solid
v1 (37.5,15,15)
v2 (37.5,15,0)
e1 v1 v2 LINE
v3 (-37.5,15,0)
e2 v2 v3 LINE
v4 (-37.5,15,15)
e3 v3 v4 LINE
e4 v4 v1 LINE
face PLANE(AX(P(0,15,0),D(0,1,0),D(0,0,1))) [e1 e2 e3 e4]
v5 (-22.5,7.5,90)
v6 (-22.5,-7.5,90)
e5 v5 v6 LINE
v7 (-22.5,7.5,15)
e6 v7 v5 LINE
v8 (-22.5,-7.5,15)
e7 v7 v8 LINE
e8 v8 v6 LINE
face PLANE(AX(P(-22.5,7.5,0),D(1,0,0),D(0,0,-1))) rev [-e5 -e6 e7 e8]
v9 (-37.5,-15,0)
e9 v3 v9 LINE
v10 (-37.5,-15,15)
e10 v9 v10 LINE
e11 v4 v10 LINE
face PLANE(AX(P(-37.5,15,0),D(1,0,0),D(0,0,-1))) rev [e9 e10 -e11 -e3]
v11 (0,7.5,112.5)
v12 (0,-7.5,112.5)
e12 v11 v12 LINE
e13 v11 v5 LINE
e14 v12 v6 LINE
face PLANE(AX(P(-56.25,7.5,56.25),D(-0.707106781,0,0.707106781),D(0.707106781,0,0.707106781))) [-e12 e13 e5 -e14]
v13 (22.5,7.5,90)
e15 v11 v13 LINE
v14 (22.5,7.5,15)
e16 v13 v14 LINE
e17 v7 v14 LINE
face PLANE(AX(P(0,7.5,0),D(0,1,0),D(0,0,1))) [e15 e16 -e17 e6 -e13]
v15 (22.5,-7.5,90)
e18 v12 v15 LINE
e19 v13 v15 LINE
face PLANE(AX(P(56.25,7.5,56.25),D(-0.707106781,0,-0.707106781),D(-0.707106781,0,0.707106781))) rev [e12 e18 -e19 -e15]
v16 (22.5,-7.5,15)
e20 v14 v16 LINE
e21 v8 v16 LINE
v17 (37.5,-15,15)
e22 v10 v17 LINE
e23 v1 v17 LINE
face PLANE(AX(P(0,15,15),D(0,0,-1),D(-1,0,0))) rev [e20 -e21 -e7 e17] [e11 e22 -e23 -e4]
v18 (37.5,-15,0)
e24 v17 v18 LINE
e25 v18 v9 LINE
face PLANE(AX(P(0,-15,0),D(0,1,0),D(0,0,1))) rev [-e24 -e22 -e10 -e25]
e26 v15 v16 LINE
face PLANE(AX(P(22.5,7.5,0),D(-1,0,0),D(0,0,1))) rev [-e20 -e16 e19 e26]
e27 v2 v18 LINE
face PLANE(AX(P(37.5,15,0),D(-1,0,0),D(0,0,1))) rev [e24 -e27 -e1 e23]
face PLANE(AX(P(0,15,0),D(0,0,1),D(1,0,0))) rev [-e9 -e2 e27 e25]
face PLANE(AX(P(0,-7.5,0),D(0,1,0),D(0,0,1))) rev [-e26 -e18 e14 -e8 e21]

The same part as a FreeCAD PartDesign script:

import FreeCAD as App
import Part
import Sketcher
from FreeCAD import Vector
Q = App.Units.Quantity


def add_polygon(sketch, points):
    """Adds a closed chain of lines whose ends are joined by coincident constraints."""
    first, n = sketch.GeometryCount, len(points)
    for a, b in zip(points, points[1:] + points[:1]):
        sketch.addGeometry(Part.LineSegment(App.Vector(*a, 0), App.Vector(*b, 0)), False)
    for i in range(n):
        sketch.addConstraint(Sketcher.Constraint("Coincident", first + i, 2, first + (i + 1) % n, 1))

doc = App.newDocument("Part")
body = doc.addObject("PartDesign::Body", "Body")

# Sketch on XZ plane
sketch1 = doc.addObject("Sketcher::SketchObject", "Sketch")
body.addObject(sketch1)
sketch1.AttachmentSupport = (doc.XZ_Plane, [""])
sketch1.MapMode = "FlatFace"
add_polygon(sketch1, [(38, 15), (38, 0), (-38, 0), (-38, 15)])  # lines 0-3
sketch1.addConstraint([
    Sketcher.Constraint("Vertical", 0),
    Sketcher.Constraint("Horizontal", 1),
    Sketcher.Constraint("Vertical", 2),
    Sketcher.Constraint("Horizontal", 3),
    Sketcher.Constraint("Symmetric", 0, 2, 1, 2, -1, 1),
    Sketcher.Constraint("DistanceX", 1, 2, 1, 1, Q("75 mm")),
    Sketcher.Constraint("DistanceY", 0, 2, 0, 1, Q("15 mm")),
])
pad1 = doc.addObject("PartDesign::Pad", "Pad")
body.addObject(pad1)
pad1.Profile = sketch1
pad1.Length = 30
pad1.Midplane = True

# Sketch on XZ plane
sketch2 = doc.addObject("Sketcher::SketchObject", "Sketch001")
body.addObject(sketch2)
sketch2.AttachmentSupport = (doc.XZ_Plane, [""])
sketch2.MapMode = "FlatFace"
add_polygon(sketch2, [(22, 90), (22, 15), (-22, 15), (-22, 90), (0, 112)])  # lines 0-4
sketch2.addConstraint([
    Sketcher.Constraint("Vertical", 0),
    Sketcher.Constraint("Horizontal", 1),
    Sketcher.Constraint("Vertical", 2),
    Sketcher.Constraint("Symmetric", 2, 2, 4, 2, -2),
    Sketcher.Constraint("PointOnObject", 3, 2, -2),
    Sketcher.Constraint("Perpendicular", 3, 4),
    Sketcher.Constraint("DistanceX", 1, 2, 1, 1, Q("45 mm")),
    Sketcher.Constraint("DistanceY", 0, 2, 0, 1, Q("75 mm")),
    Sketcher.Constraint("DistanceY", -1, 1, 0, 2, Q("15 mm")),
])
pad2 = doc.addObject("PartDesign::Pad", "Pad001")
body.addObject(pad2)
pad2.Profile = sketch2
pad2.Length = 15
pad2.Midplane = True

doc.recompute()
